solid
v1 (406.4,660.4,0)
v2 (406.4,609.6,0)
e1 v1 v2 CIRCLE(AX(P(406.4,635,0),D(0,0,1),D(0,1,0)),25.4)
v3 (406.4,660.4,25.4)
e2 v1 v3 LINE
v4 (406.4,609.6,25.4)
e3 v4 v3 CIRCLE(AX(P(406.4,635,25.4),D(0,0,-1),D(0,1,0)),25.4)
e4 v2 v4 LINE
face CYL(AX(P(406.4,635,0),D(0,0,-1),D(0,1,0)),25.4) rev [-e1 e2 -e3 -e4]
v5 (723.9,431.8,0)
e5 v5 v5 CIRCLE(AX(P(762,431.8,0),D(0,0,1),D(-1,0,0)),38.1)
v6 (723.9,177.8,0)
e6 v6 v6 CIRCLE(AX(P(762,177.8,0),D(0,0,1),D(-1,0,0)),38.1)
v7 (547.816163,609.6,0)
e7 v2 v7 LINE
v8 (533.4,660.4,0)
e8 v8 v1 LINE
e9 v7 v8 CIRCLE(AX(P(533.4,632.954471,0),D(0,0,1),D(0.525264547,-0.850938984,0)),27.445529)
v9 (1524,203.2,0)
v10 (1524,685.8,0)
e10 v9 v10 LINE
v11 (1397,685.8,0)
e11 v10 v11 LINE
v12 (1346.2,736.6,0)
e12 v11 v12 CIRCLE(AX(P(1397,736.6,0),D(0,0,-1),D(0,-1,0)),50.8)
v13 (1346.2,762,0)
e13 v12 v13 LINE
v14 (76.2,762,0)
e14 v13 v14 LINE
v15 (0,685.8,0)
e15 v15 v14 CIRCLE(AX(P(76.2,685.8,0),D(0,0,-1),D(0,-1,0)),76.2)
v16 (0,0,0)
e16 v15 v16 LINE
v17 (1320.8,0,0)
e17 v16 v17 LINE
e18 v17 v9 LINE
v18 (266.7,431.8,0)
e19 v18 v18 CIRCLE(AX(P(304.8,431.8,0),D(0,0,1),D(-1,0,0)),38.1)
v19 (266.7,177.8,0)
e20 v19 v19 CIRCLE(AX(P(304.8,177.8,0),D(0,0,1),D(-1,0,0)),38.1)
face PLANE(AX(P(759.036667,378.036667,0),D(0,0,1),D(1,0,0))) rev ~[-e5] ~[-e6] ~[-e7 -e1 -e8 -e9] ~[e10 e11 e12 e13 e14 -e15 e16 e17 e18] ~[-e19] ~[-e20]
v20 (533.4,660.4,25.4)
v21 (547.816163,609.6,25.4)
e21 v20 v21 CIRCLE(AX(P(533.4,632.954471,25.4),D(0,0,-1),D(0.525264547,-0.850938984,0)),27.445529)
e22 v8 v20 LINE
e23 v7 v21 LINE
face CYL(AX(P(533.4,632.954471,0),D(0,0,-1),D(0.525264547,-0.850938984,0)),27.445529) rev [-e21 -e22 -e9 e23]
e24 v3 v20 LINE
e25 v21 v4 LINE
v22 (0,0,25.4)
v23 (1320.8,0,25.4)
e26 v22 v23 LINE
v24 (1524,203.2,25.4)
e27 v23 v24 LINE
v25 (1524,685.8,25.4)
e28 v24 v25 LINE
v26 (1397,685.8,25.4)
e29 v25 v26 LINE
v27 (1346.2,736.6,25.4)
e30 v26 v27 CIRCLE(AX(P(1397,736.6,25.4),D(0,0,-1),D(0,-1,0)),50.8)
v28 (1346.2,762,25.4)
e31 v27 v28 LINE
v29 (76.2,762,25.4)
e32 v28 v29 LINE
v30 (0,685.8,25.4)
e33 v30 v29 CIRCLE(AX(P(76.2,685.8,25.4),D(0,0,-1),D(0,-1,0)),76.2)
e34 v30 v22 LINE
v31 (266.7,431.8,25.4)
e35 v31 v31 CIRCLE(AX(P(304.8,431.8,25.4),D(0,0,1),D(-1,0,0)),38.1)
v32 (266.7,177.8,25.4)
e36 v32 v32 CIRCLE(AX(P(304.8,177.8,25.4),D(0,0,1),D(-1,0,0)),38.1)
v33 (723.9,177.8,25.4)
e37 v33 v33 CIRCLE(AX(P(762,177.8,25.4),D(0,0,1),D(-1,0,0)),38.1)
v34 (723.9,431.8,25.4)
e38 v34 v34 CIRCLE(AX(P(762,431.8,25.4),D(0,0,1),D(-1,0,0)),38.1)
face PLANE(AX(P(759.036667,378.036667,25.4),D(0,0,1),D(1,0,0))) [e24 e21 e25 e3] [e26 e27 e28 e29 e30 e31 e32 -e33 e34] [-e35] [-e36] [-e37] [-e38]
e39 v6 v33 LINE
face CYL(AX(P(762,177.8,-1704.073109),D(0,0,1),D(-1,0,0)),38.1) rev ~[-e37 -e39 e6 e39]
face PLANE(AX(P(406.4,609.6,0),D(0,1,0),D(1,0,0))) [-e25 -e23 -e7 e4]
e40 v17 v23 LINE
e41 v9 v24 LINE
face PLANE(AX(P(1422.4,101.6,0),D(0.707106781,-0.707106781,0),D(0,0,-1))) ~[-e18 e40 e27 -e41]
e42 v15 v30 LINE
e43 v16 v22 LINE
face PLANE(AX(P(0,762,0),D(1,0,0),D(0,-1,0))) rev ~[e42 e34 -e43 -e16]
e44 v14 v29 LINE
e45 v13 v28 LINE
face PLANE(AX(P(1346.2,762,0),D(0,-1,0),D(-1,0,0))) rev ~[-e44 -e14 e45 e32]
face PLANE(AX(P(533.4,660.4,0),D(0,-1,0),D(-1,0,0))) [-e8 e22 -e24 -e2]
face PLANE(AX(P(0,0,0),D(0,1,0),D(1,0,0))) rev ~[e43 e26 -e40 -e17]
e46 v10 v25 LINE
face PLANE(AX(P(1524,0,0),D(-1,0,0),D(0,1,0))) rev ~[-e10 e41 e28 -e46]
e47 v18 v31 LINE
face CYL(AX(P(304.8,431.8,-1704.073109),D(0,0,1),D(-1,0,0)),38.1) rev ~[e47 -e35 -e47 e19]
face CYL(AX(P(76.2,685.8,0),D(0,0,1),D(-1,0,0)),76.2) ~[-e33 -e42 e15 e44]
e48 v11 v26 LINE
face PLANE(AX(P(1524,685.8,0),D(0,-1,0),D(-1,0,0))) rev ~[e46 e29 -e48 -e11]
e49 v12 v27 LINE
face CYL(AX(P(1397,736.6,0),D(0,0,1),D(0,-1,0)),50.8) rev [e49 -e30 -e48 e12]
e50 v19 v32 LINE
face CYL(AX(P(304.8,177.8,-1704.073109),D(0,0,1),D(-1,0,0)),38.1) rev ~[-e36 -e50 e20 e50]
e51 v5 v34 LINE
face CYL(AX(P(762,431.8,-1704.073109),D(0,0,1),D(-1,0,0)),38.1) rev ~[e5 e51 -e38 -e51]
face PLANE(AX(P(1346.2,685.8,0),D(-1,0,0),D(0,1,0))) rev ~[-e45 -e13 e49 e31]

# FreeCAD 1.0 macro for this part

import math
import FreeCAD as App
import Part
import Sketcher

V = App.Vector
Q = App.Units.Quantity


def edges_at(feature, points):
    """Names of the edges that pass closest to the given points."""
    edges = feature.Shape.Edges
    near = lambda p: min(range(len(edges)), key=lambda i: edges[i].distToShape(Part.Vertex(*p))[0])
    return sorted({f"Edge{near(p) + 1}" for p in points})

doc = App.newDocument("Part")
params = doc.addObject("Spreadsheet::Sheet", "Params")
for row, (alias, value) in enumerate([
    ("sketch1_width", "60 in"),
    ("sketch1_width2", "7 in"),
    ("sketch1_height", "30 in"),
    ("sketch1_height2", "27 in"),
    ("pad1_length", "1 in"),
    ("sketch2_diameter", "3 in"),
    ("hole_diameter", "3 in"),
    ("fillet_radius", "3 in"),
    ("chamfer_size", "8 in"),
    ("fillet2_radius", "2 in"),
    ("sketch3_radius", "1 in"),
    ("sketch3_width", "5 in"),
], start=1):
    params.set(f"A{row}", alias)
    params.set(f"B{row}", "=" + value)
    params.setAlias(f"B{row}", alias)

body = doc.addObject("PartDesign::Body", "Body")

sketch1 = doc.addObject("Sketcher::SketchObject", "Sketch")
body.addObject(sketch1)
sketch1.AttachmentSupport = (doc.XY_Plane, [""])
sketch1.MapMode = "FlatFace"
sketch1.addGeometry(Part.LineSegment(V(0, 762, 0), V(0, 0, 0)), False)
sketch1.addGeometry(Part.LineSegment(V(0, 0, 0), V(1524, 0, 0)), False)
sketch1.addGeometry(Part.LineSegment(V(1524, 0, 0), V(1524, 685.8, 0)), False)
sketch1.addGeometry(Part.LineSegment(V(1524, 685.8, 0), V(1346.2, 685.8, 0)), False)
sketch1.addGeometry(Part.LineSegment(V(1346.2, 685.8, 0), V(1346.2, 762, 0)), False)
sketch1.addGeometry(Part.LineSegment(V(1346.2, 762, 0), V(0, 762, 0)), False)
sketch1.addConstraint(Sketcher.Constraint("Coincident", 0, 2, 1, 1))
sketch1.addConstraint(Sketcher.Constraint("Coincident", 1, 2, 2, 1))
sketch1.addConstraint(Sketcher.Constraint("Coincident", 2, 2, 3, 1))
sketch1.addConstraint(Sketcher.Constraint("Coincident", 3, 2, 4, 1))
sketch1.addConstraint(Sketcher.Constraint("Coincident", 4, 2, 5, 1))
sketch1.addConstraint(Sketcher.Constraint("Coincident", 5, 2, 0, 1))
sketch1.addConstraint(Sketcher.Constraint("Vertical", 0))
sketch1.addConstraint(Sketcher.Constraint("Horizontal", 1))
sketch1.addConstraint(Sketcher.Constraint("Vertical", 2))
sketch1.addConstraint(Sketcher.Constraint("Horizontal", 3))
sketch1.addConstraint(Sketcher.Constraint("Vertical", 4))
sketch1.addConstraint(Sketcher.Constraint("Horizontal", 5))
sketch1.addConstraint(Sketcher.Constraint("Coincident", 0, 2, -1, 1))
sketch1.addConstraint(Sketcher.Constraint("DistanceX", 1, 1, 1, 2, Q("60 in")))
sketch1.addConstraint(Sketcher.Constraint("DistanceX", 3, 2, 3, 1, Q("7 in")))
sketch1.addConstraint(Sketcher.Constraint("DistanceY", 0, 2, 0, 1, Q("30 in")))
sketch1.addConstraint(Sketcher.Constraint("DistanceY", 2, 1, 2, 2, Q("27 in")))
sketch1.setExpression("Constraints[13]", "Params.sketch1_width")
sketch1.setExpression("Constraints[14]", "Params.sketch1_width2")
sketch1.setExpression("Constraints[15]", "Params.sketch1_height")
sketch1.setExpression("Constraints[16]", "Params.sketch1_height2")
pad1 = doc.addObject("PartDesign::Pad", "Pad")
body.addObject(pad1)
pad1.Profile = sketch1
pad1.setExpression("Length", "Params.pad1_length")

sketch2 = doc.addObject("Sketcher::SketchObject", "Sketch001")
body.addObject(sketch2)
sketch2.AttachmentSupport = (doc.XY_Plane, [""])
sketch2.MapMode = "FlatFace"
sketch2.addGeometry(Part.Circle(V(304.8, 177.8, 0), V(0, 0, 1), 38.1), False)
sketch2.addGeometry(Part.Circle(V(304.8, 431.8, 0), V(0, 0, 1), 38.1), False)
sketch2.addGeometry(Part.Circle(V(762, 431.8, 0), V(0, 0, 1), 38.1), False)
sketch2.addGeometry(Part.Circle(V(762, 177.8, 0), V(0, 0, 1), 38.1), False)
sketch2.addConstraint(Sketcher.Constraint("Equal", 0, 1))
sketch2.addConstraint(Sketcher.Constraint("Equal", 1, 2))
sketch2.addConstraint(Sketcher.Constraint("Equal", 2, 3))
sketch2.addConstraint(Sketcher.Constraint("Horizontal", 1, 3, 2, 3))
sketch2.addConstraint(Sketcher.Constraint("Horizontal", 0, 3, 3, 3))
sketch2.addConstraint(Sketcher.Constraint("Vertical", 0, 3, 1, 3))
sketch2.addConstraint(Sketcher.Constraint("Vertical", 2, 3, 3, 3))
sketch2.addConstraint(Sketcher.Constraint("Diameter", 0, Q("3 in")))
sketch2.addConstraint(Sketcher.Constraint("DistanceX", -1, 1, 0, 3, Q("12 in")))
sketch2.addConstraint(Sketcher.Constraint("DistanceY", -1, 1, 0, 3, Q("7 in")))
sketch2.addConstraint(Sketcher.Constraint("DistanceY", -1, 1, 1, 3, Q("17 in")))
sketch2.addConstraint(Sketcher.Constraint("DistanceX", -1, 1, 2, 3, Q("30 in")))
sketch2.setExpression("Constraints[7]", "Params.sketch2_diameter")
doc.recompute()
hole = doc.addObject("PartDesign::Hole", "Hole")
body.addObject(hole)
hole.Profile = sketch2
hole.ThreadType = "None"
hole.setExpression("Diameter", "Params.hole_diameter")
hole.DepthType = "ThroughAll"
hole.Reversed = True
doc.recompute()

fillet = doc.addObject("PartDesign::Fillet", "Fillet")
body.addObject(fillet)
fillet.Base = (hole, edges_at(hole, [(0, 762, 12.7)]))
fillet.setExpression("Radius", "Params.fillet_radius")
doc.recompute()

chamfer = doc.addObject("PartDesign::Chamfer", "Chamfer")
body.addObject(chamfer)
chamfer.Base = (fillet, edges_at(fillet, [(1524, 0, 12.7)]))
chamfer.setExpression("Size", "Params.chamfer_size")
doc.recompute()

fillet2 = doc.addObject("PartDesign::Fillet", "Fillet001")
body.addObject(fillet2)
fillet2.Base = (chamfer, edges_at(chamfer, [(1346.2, 685.8, 12.7)]))
fillet2.setExpression("Radius", "Params.fillet2_radius")

sketch3 = doc.addObject("Sketcher::SketchObject", "Sketch002")
body.addObject(sketch3)
sketch3.AttachmentSupport = (doc.XY_Plane, [""])
sketch3.MapMode = "FlatFace"
sketch3.addGeometry(Part.LineSegment(V(533.4, 660.4, 0), V(406.4, 660.4, 0)), False)
sketch3.addGeometry(Part.ArcOfCircle(Part.Circle(V(406.4, 635, 0), V(0, 0, 1), 25.4), math.radians(90), math.radians(270)), False)
sketch3.addGeometry(Part.LineSegment(V(406.4, 609.6, 0), V(547.816163, 609.6, 0)), False)
sketch3.addGeometry(Part.ArcOfCircle(Part.Circle(V(533.4, 632.954471, 0), V(0, 0, 1), 27.445529), math.radians(-58.313946), math.radians(90)), False)
sketch3.addConstraint(Sketcher.Constraint("Tangent", 0, 2, 1, 1))
sketch3.addConstraint(Sketcher.Constraint("Tangent", 1, 2, 2, 1))
sketch3.addConstraint(Sketcher.Constraint("Coincident", 2, 2, 3, 1))
sketch3.addConstraint(Sketcher.Constraint("Tangent", 3, 2, 0, 1))
sketch3.addConstraint(Sketcher.Constraint("Horizontal", 0))
sketch3.addConstraint(Sketcher.Constraint("Horizontal", 2))
sketch3.addConstraint(Sketcher.Constraint("Radius", 1, Q("1 in")))
sketch3.addConstraint(Sketcher.Constraint("DistanceX", 0, 2, 0, 1, Q("5 in")))
sketch3.addConstraint(Sketcher.Constraint("DistanceX", -1, 1, 1, 3, Q("16 in")))
sketch3.addConstraint(Sketcher.Constraint("DistanceY", -1, 1, 1, 3, Q("25 in")))
sketch3.addConstraint(Sketcher.Constraint("Radius", 3, 27.445529))
sketch3.setExpression("Constraints[6]", "Params.sketch3_radius")
sketch3.setExpression("Constraints[7]", "Params.sketch3_width")
pocket1 = doc.addObject("PartDesign::Pocket", "Pocket")
body.addObject(pocket1)
pocket1.Profile = sketch3
pocket1.Type = "ThroughAll"
pocket1.Reversed = True

doc.recompute()
